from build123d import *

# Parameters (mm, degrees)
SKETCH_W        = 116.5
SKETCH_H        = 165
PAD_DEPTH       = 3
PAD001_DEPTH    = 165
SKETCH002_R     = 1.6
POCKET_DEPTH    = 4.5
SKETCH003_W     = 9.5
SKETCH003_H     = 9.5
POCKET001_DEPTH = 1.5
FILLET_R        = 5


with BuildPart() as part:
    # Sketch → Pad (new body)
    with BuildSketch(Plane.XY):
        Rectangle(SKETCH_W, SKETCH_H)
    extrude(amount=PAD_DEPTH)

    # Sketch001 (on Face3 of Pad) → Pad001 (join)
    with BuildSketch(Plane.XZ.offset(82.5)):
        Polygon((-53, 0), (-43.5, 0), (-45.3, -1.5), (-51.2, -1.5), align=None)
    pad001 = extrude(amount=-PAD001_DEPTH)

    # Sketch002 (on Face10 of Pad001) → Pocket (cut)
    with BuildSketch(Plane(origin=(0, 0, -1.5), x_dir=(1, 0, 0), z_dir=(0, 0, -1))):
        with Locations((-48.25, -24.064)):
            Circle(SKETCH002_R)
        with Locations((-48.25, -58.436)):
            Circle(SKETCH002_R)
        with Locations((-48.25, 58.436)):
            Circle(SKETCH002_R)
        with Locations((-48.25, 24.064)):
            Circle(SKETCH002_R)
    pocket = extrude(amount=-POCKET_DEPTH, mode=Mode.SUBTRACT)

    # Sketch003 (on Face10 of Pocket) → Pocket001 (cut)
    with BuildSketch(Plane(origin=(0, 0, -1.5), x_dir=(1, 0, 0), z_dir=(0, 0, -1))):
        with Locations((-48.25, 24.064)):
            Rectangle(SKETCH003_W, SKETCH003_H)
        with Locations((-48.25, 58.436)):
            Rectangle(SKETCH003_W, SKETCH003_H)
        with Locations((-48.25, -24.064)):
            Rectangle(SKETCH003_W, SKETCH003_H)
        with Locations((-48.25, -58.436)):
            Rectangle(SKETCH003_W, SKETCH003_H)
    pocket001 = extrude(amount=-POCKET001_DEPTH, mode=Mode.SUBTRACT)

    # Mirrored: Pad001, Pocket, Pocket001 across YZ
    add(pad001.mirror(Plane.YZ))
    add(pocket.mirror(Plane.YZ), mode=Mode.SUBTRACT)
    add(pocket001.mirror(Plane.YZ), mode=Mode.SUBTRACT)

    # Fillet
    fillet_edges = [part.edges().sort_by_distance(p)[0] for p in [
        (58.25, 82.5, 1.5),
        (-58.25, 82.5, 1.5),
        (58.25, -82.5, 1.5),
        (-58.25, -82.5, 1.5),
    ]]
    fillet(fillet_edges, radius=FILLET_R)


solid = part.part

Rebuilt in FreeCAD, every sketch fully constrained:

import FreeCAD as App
import Part
import Sketcher
Q = App.Units.Quantity


def edges_at(feature, points):
    """Names of the edges that pass closest to the given points."""
    edges = feature.Shape.Edges
    near = lambda p: min(range(len(edges)), key=lambda i: edges[i].distToShape(Part.Vertex(*p))[0])
    return sorted({f"Edge{near(p) + 1}" for p in points})

doc = App.newDocument("Part")
body = doc.addObject("PartDesign::Body", "Body")

# Sketch on XY plane
sketch1 = body.newObject("Sketcher::SketchObject", "Sketch")
sketch1.AttachmentSupport = (doc.getObject("XY_Plane"), [""])
sketch1.MapMode = "FlatFace"
sketch1.addGeometry(Part.LineSegment(App.Vector(-58, 82, 0), App.Vector(-58, -82, 0)), False)
sketch1.addGeometry(Part.LineSegment(App.Vector(-58, -82, 0), App.Vector(58, -82, 0)), False)
sketch1.addGeometry(Part.LineSegment(App.Vector(58, -82, 0), App.Vector(58, 82, 0)), False)
sketch1.addGeometry(Part.LineSegment(App.Vector(58, 82, 0), App.Vector(-58, 82, 0)), False)
sketch1.addConstraint(Sketcher.Constraint("Coincident", 0, 2, 1, 1))
sketch1.addConstraint(Sketcher.Constraint("Coincident", 1, 2, 2, 1))
sketch1.addConstraint(Sketcher.Constraint("Coincident", 2, 2, 3, 1))
sketch1.addConstraint(Sketcher.Constraint("Coincident", 3, 2, 0, 1))
sketch1.addConstraint(Sketcher.Constraint("Vertical", 0))
sketch1.addConstraint(Sketcher.Constraint("Horizontal", 1))
sketch1.addConstraint(Sketcher.Constraint("Vertical", 2))
sketch1.addConstraint(Sketcher.Constraint("Horizontal", 3))
sketch1.addConstraint(Sketcher.Constraint("Symmetric", 0, 2, 2, 2, -1, 1))
sketch1.addConstraint(Sketcher.Constraint("DistanceY", 0, 2, 0, 1, Q("165 mm")))
sketch1.addConstraint(Sketcher.Constraint("DistanceX", 1, 1, 1, 2, Q("116.5 mm")))
pad1 = body.newObject("PartDesign::Pad", "Pad")
pad1.Profile = sketch1
pad1.Length = 3

# Sketch on XZ plane
sketch2 = body.newObject("Sketcher::SketchObject", "Sketch001")
sketch2.AttachmentSupport = (doc.getObject("XZ_Plane"), [""])
sketch2.MapMode = "FlatFace"
sketch2.AttachmentOffset = App.Placement(App.Vector(0, 0, 82.5), App.Rotation())
sketch2.addGeometry(Part.LineSegment(App.Vector(-43.5, 0, 0), App.Vector(-53, 0, 0)), False)
sketch2.addGeometry(Part.LineSegment(App.Vector(-53, 0, 0), App.Vector(-51.2, -1.5, 0)), False)
sketch2.addGeometry(Part.LineSegment(App.Vector(-51.2, -1.5, 0), App.Vector(-45.3, -1.5, 0)), False)
sketch2.addGeometry(Part.LineSegment(App.Vector(-45.3, -1.5, 0), App.Vector(-43.5, 0, 0)), False)
sketch2.addConstraint(Sketcher.Constraint("Coincident", 0, 2, 1, 1))
sketch2.addConstraint(Sketcher.Constraint("Coincident", 1, 2, 2, 1))
sketch2.addConstraint(Sketcher.Constraint("Coincident", 2, 2, 3, 1))
sketch2.addConstraint(Sketcher.Constraint("Coincident", 3, 2, 0, 1))
sketch2.addConstraint(Sketcher.Constraint("Horizontal", 0))
sketch2.addConstraint(Sketcher.Constraint("Horizontal", 2))
sketch2.addConstraint(Sketcher.Constraint("PointOnObject", 0, 2, -1))
sketch2.addConstraint(Sketcher.Constraint("Equal", 1, 3))
sketch2.addConstraint(Sketcher.Constraint("DistanceX", 0, 2, 0, 1, Q("9.5 mm")))
sketch2.addConstraint(Sketcher.Constraint("DistanceX", 2, 1, 2, 2, Q("5.9 mm")))
sketch2.addConstraint(Sketcher.Constraint("DistanceX", 0, 2, -1, 1, Q("53 mm")))
sketch2.addConstraint(Sketcher.Constraint("DistanceY", 1, 2, -1, 1, Q("1.5 mm")))
pad2 = body.newObject("PartDesign::Pad", "Pad001")
pad2.Profile = sketch2
pad2.Length = 165
pad2.Reversed = True

# Sketch on XY plane
sketch3 = body.newObject("Sketcher::SketchObject", "Sketch002")
sketch3.AttachmentSupport = (doc.getObject("XY_Plane"), [""])
sketch3.MapMode = "FlatFace"
sketch3.AttachmentOffset = App.Placement(App.Vector(0, 0, -1.5), App.Rotation())
sketch3.addGeometry(Part.Circle(App.Vector(-48.2, 24.1, 0), App.Vector(0, 0, 1), 1.6), False)
sketch3.addGeometry(Part.Circle(App.Vector(-48.2, 58.4, 0), App.Vector(0, 0, 1), 1.6), False)
sketch3.addGeometry(Part.Circle(App.Vector(-48.2, -58.4, 0), App.Vector(0, 0, 1), 1.6), False)
sketch3.addGeometry(Part.Circle(App.Vector(-48.2, -24.1, 0), App.Vector(0, 0, 1), 1.6), False)
sketch3.addConstraint(Sketcher.Constraint("Equal", 0, 1))
sketch3.addConstraint(Sketcher.Constraint("Equal", 1, 2))
sketch3.addConstraint(Sketcher.Constraint("Equal", 2, 3))
sketch3.addConstraint(Sketcher.Constraint("Symmetric", 1, 3, 2, 3, -1))
sketch3.addConstraint(Sketcher.Constraint("Symmetric", 0, 3, 3, 3, -1))
sketch3.addConstraint(Sketcher.Constraint("Vertical", 0, 3, 1, 3))
sketch3.addConstraint(Sketcher.Constraint("Diameter", 0, Q("3.2 mm")))
sketch3.addConstraint(Sketcher.Constraint("DistanceY", 2, 3, 0, 3, Q("82.5 mm")))
sketch3.addConstraint(Sketcher.Constraint("DistanceX", 0, 3, -1, 1, Q("48.25 mm")))
sketch3.addConstraint(Sketcher.Constraint("DistanceY", -1, 1, 0, 3, Q("24.064 mm")))
pocket1 = body.newObject("PartDesign::Pocket", "Pocket")
pocket1.Profile = sketch3
pocket1.Length = 4.5
pocket1.Reversed = True

# Sketch on XY plane
sketch4 = body.newObject("Sketcher::SketchObject", "Sketch003")
sketch4.AttachmentSupport = (doc.getObject("XY_Plane"), [""])
sketch4.MapMode = "FlatFace"
sketch4.AttachmentOffset = App.Placement(App.Vector(0, 0, -1.5), App.Rotation())
sketch4.addGeometry(Part.LineSegment(App.Vector(-53, -29, 0), App.Vector(-53, -19, 0)), False)
sketch4.addGeometry(Part.LineSegment(App.Vector(-53, -19, 0), App.Vector(-44, -19, 0)), False)
sketch4.addGeometry(Part.LineSegment(App.Vector(-44, -19, 0), App.Vector(-44, -29, 0)), False)
sketch4.addGeometry(Part.LineSegment(App.Vector(-44, -29, 0), App.Vector(-53, -29, 0)), False)
sketch4.addGeometry(Part.LineSegment(App.Vector(-53, -63, 0), App.Vector(-53, -54, 0)), False)
sketch4.addGeometry(Part.LineSegment(App.Vector(-53, -54, 0), App.Vector(-44, -54, 0)), False)
sketch4.addGeometry(Part.LineSegment(App.Vector(-44, -54, 0), App.Vector(-44, -63, 0)), False)
sketch4.addGeometry(Part.LineSegment(App.Vector(-44, -63, 0), App.Vector(-53, -63, 0)), False)
sketch4.addGeometry(Part.LineSegment(App.Vector(-53, 19, 0), App.Vector(-53, 29, 0)), False)
sketch4.addGeometry(Part.LineSegment(App.Vector(-53, 29, 0), App.Vector(-44, 29, 0)), False)
sketch4.addGeometry(Part.LineSegment(App.Vector(-44, 29, 0), App.Vector(-44, 19, 0)), False)
sketch4.addGeometry(Part.LineSegment(App.Vector(-44, 19, 0), App.Vector(-53, 19, 0)), False)
sketch4.addGeometry(Part.LineSegment(App.Vector(-53, 54, 0), App.Vector(-53, 63, 0)), False)
sketch4.addGeometry(Part.LineSegment(App.Vector(-53, 63, 0), App.Vector(-44, 63, 0)), False)
sketch4.addGeometry(Part.LineSegment(App.Vector(-44, 63, 0), App.Vector(-44, 54, 0)), False)
sketch4.addGeometry(Part.LineSegment(App.Vector(-44, 54, 0), App.Vector(-53, 54, 0)), False)
sketch4.addConstraint(Sketcher.Constraint("Coincident", 0, 2, 1, 1))
sketch4.addConstraint(Sketcher.Constraint("Coincident", 1, 2, 2, 1))
sketch4.addConstraint(Sketcher.Constraint("Coincident", 2, 2, 3, 1))
sketch4.addConstraint(Sketcher.Constraint("Coincident", 3, 2, 0, 1))
sketch4.addConstraint(Sketcher.Constraint("Coincident", 4, 2, 5, 1))
sketch4.addConstraint(Sketcher.Constraint("Coincident", 5, 2, 6, 1))
sketch4.addConstraint(Sketcher.Constraint("Coincident", 6, 2, 7, 1))
sketch4.addConstraint(Sketcher.Constraint("Coincident", 7, 2, 4, 1))
sketch4.addConstraint(Sketcher.Constraint("Coincident", 8, 2, 9, 1))
sketch4.addConstraint(Sketcher.Constraint("Coincident", 9, 2, 10, 1))
sketch4.addConstraint(Sketcher.Constraint("Coincident", 10, 2, 11, 1))
sketch4.addConstraint(Sketcher.Constraint("Coincident", 11, 2, 8, 1))
sketch4.addConstraint(Sketcher.Constraint("Coincident", 12, 2, 13, 1))
sketch4.addConstraint(Sketcher.Constraint("Coincident", 13, 2, 14, 1))
sketch4.addConstraint(Sketcher.Constraint("Coincident", 14, 2, 15, 1))
sketch4.addConstraint(Sketcher.Constraint("Coincident", 15, 2, 12, 1))
sketch4.addConstraint(Sketcher.Constraint("Vertical", 0))
sketch4.addConstraint(Sketcher.Constraint("Horizontal", 1))
sketch4.addConstraint(Sketcher.Constraint("Vertical", 2))
sketch4.addConstraint(Sketcher.Constraint("Horizontal", 3))
sketch4.addConstraint(Sketcher.Constraint("Vertical", 4))
sketch4.addConstraint(Sketcher.Constraint("Horizontal", 5))
sketch4.addConstraint(Sketcher.Constraint("Vertical", 6))
sketch4.addConstraint(Sketcher.Constraint("Horizontal", 7))
sketch4.addConstraint(Sketcher.Constraint("Vertical", 8))
sketch4.addConstraint(Sketcher.Constraint("Horizontal", 9))
sketch4.addConstraint(Sketcher.Constraint("Vertical", 10))
sketch4.addConstraint(Sketcher.Constraint("Horizontal", 11))
sketch4.addConstraint(Sketcher.Constraint("Vertical", 12))
sketch4.addConstraint(Sketcher.Constraint("Horizontal", 13))
sketch4.addConstraint(Sketcher.Constraint("Vertical", 14))
sketch4.addConstraint(Sketcher.Constraint("Horizontal", 15))
sketch4.addConstraint(Sketcher.Constraint("Symmetric", 3, 2, 8, 2, -1))
sketch4.addConstraint(Sketcher.Constraint("Symmetric", 1, 2, 10, 2, -1))
sketch4.addConstraint(Sketcher.Constraint("Symmetric", 7, 2, 12, 2, -1))
sketch4.addConstraint(Sketcher.Constraint("Symmetric", 5, 2, 14, 2, -1))
sketch4.addConstraint(Sketcher.Constraint("Vertical", 3, 2, 4, 2))
sketch4.addConstraint(Sketcher.Constraint("Vertical", 2, 2, 5, 2))
sketch4.addConstraint(Sketcher.Constraint("Equal", 15, 0))
sketch4.addConstraint(Sketcher.Constraint("Equal", 2, 4))
sketch4.addConstraint(Sketcher.Constraint("DistanceX", 1, 1, 1, 2, Q("9.5 mm")))
sketch4.addConstraint(Sketcher.Constraint("DistanceX", 0, 2, -1, 1, Q("53 mm")))
sketch4.addConstraint(Sketcher.Constraint("DistanceY", 4, 2, 8, 2, Q("82.5 mm")))
sketch4.addConstraint(Sketcher.Constraint("DistanceY", 0, 2, -1, 1, Q("19.314 mm")))
pocket2 = body.newObject("PartDesign::Pocket", "Pocket001")
pocket2.Profile = sketch4
pocket2.Length = 1.5
pocket2.Reversed = True
doc.recompute()

mirrored = body.newObject("PartDesign::Mirrored", "Mirrored")
mirrored.Originals = [pad2, pocket1, pocket2]
mirrored.MirrorPlane = (doc.getObject("YZ_Plane"), [""])
body.Tip = mirrored
doc.recompute()

fillet = body.newObject("PartDesign::Fillet", "Fillet")
fillet.Base = (mirrored, edges_at(mirrored, [
    (58.25, 82.5, 1.5),
    (-58.25, 82.5, 1.5),
    (58.25, -82.5, 1.5),
    (-58.25, -82.5, 1.5),
]))
fillet.Radius = 5

doc.recompute()
